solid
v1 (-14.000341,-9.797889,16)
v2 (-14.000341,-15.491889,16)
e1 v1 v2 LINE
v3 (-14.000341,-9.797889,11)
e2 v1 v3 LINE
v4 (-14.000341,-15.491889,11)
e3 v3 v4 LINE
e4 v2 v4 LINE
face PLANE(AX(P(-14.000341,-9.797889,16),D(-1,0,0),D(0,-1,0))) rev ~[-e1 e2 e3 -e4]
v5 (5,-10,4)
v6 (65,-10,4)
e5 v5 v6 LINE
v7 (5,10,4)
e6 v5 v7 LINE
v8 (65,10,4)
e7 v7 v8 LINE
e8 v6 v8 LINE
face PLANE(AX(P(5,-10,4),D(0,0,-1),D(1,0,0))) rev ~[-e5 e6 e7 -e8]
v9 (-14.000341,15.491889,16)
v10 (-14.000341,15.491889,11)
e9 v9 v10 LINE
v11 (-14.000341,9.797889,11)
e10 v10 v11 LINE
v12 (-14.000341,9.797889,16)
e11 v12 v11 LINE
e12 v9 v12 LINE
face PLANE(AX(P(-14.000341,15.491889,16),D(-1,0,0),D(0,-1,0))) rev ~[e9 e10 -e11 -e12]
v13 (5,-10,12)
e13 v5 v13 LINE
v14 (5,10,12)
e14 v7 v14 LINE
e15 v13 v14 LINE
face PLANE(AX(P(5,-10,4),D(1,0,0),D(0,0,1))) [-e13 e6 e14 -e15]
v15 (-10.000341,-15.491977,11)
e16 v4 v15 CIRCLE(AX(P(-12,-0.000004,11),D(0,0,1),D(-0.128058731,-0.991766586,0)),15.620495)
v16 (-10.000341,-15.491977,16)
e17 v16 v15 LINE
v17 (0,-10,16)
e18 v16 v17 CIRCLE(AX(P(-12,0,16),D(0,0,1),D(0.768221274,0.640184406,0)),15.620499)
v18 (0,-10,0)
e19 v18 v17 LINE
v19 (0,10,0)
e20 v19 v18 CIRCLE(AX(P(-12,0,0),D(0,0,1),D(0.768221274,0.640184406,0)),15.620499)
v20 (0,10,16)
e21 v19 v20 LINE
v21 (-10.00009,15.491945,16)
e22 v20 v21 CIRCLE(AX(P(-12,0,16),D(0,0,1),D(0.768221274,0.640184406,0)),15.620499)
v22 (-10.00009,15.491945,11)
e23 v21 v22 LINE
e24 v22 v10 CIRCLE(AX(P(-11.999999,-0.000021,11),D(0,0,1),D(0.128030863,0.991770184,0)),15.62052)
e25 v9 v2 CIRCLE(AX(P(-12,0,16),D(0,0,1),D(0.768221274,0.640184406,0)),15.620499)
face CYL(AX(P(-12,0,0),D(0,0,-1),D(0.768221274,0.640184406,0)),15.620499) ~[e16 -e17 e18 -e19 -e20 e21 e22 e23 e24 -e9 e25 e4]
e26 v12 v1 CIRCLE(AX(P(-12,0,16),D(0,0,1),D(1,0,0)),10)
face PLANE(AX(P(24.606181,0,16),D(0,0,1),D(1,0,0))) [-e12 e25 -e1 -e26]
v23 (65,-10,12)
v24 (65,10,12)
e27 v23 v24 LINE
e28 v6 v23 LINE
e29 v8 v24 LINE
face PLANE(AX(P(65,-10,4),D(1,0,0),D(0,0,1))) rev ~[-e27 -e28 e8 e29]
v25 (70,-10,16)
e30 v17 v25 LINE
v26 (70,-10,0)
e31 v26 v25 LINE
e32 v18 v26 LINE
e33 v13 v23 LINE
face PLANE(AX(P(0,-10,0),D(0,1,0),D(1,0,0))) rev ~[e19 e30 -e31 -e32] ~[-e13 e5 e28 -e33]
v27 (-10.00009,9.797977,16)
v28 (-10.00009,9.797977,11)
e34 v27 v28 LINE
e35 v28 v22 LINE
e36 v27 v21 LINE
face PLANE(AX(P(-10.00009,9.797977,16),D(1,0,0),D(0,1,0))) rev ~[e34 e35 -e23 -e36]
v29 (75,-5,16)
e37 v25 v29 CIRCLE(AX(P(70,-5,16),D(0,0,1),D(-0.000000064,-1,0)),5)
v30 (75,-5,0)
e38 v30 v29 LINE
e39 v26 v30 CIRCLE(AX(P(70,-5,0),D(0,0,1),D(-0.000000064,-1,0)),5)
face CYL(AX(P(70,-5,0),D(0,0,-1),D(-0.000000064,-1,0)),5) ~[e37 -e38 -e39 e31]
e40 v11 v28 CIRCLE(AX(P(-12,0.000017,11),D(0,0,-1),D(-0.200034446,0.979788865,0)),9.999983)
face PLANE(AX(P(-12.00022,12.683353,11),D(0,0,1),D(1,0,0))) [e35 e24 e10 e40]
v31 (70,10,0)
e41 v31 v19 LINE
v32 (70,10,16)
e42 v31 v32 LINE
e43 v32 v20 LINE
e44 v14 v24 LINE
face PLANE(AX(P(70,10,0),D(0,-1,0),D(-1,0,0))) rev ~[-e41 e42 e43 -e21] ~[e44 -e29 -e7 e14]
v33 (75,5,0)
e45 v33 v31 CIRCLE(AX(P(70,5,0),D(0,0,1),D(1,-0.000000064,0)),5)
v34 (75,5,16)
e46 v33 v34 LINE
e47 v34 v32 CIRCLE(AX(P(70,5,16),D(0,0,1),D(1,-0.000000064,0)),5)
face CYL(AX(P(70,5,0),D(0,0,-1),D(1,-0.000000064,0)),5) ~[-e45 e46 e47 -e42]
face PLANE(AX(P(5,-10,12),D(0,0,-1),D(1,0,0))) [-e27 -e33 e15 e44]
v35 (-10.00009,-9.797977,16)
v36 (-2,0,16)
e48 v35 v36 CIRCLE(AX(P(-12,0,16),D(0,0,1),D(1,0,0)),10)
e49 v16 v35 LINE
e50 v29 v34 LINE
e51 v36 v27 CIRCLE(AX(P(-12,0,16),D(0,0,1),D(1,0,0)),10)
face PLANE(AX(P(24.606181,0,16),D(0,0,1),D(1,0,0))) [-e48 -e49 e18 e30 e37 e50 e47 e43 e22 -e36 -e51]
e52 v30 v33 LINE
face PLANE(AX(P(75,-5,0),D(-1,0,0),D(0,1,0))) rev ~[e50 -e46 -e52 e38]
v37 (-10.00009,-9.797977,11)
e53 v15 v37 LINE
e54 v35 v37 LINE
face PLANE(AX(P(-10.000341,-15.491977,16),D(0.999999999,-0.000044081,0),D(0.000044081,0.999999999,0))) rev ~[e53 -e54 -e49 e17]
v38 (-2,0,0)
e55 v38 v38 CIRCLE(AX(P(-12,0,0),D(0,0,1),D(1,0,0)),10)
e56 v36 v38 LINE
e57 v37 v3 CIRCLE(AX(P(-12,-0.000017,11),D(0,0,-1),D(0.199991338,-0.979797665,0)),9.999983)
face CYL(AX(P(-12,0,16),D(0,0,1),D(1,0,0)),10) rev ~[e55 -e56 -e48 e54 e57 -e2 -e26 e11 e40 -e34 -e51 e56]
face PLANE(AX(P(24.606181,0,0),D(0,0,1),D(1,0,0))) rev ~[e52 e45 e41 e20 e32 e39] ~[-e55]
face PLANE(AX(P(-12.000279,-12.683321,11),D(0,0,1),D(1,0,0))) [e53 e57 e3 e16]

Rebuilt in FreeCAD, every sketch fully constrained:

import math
import FreeCAD as App
import Part
import Sketcher

V = App.Vector

doc = App.newDocument("Part")
params = doc.addObject("Spreadsheet::Sheet", "Params")
for row, (alias, value) in enumerate([
    ("sketch1_radius", "5 mm"),
    ("sketch1_width", "70 mm"),
    ("sketch1_height", "10 mm"),
    ("pad1_length", "16 mm"),
    ("sketch2_diameter", "20 mm"),
    ("pocket1_length", "25 mm"),
    ("sketch3_width", "60 mm"),
    ("sketch3_height", "8 mm"),
    ("pocket2_length", "25 mm"),
    ("pocket3_length", "5 mm"),
], start=1):
    params.set(f"A{row}", alias)
    params.set(f"B{row}", "=" + value)
    params.setAlias(f"B{row}", alias)

body = doc.addObject("PartDesign::Body", "Body")

sketch1 = body.newObject("Sketcher::SketchObject", "Sketch")
sketch1.AttachmentSupport = (doc.getObject("XY_Plane"), [""])
sketch1.MapMode = "FlatFace"
sketch1.addGeometry(Part.LineSegment(V(75, -5, 0), V(75, 5, 0)), False)
sketch1.addGeometry(Part.ArcOfCircle(Part.Circle(V(70, 5, 0), V(0, 0, 1), 5), math.radians(-0.000004), math.radians(90.000004)), False)
sketch1.addGeometry(Part.LineSegment(V(70, 10, 0), V(0, 10, 0)), False)
sketch1.addGeometry(Part.ArcOfCircle(Part.Circle(V(-12, 0, 0), V(0, 0, 1), 15.620499), math.radians(39.805572), math.radians(320.194428)), False)
sketch1.addGeometry(Part.LineSegment(V(0, -10, 0), V(70, -10, 0)), False)
sketch1.addGeometry(Part.ArcOfCircle(Part.Circle(V(70, -5, 0), V(0, 0, 1), 5), math.radians(-90.000004), math.radians(0.000004)), False)
sketch1.addConstraint(Sketcher.Constraint("Tangent", 0, 2, 1, 1))
sketch1.addConstraint(Sketcher.Constraint("Tangent", 1, 2, 2, 1))
sketch1.addConstraint(Sketcher.Constraint("Coincident", 2, 2, 3, 1))
sketch1.addConstraint(Sketcher.Constraint("Coincident", 3, 2, 4, 1))
sketch1.addConstraint(Sketcher.Constraint("Tangent", 4, 2, 5, 1))
sketch1.addConstraint(Sketcher.Constraint("Tangent", 5, 2, 0, 1))
sketch1.addConstraint(Sketcher.Constraint("Vertical", 0))
sketch1.addConstraint(Sketcher.Constraint("Horizontal", 2))
sketch1.addConstraint(Sketcher.Constraint("Horizontal", 4))
sketch1.addConstraint(Sketcher.Constraint("Equal", 1, 5))
sketch1.addConstraint(Sketcher.Constraint("Symmetric", 2, 2, 3, 2, -1, 1))
sketch1.addConstraint(Sketcher.Constraint("PointOnObject", 3, 3, -1))
sketch1.addConstraint(Sketcher.Constraint("Radius", 1, 5.0))
sketch1.addConstraint(Sketcher.Constraint("DistanceX", 2, 2, 2, 1, 70.0))
sketch1.addConstraint(Sketcher.Constraint("DistanceY", 0, 1, 0, 2, 10.0))
sketch1.addConstraint(Sketcher.Constraint("DistanceX", 3, 3, -1, 1, 12.0))
sketch1.setExpression("Constraints[12]", "Params.sketch1_radius")
sketch1.setExpression("Constraints[13]", "Params.sketch1_width")
sketch1.setExpression("Constraints[14]", "Params.sketch1_height")
pad1 = body.newObject("PartDesign::Pad", "Pad")
pad1.Profile = sketch1
pad1.setExpression("Length", "Params.pad1_length")

sketch2 = body.newObject("Sketcher::SketchObject", "Sketch001")
sketch2.AttachmentSupport = (doc.getObject("XY_Plane"), [""])
sketch2.MapMode = "FlatFace"
sketch2.AttachmentOffset = App.Placement(V(0, 0, 16), App.Rotation())
sketch2.addGeometry(Part.Circle(V(-12, 0, 0), V(0, 0, 1), 10), False)
sketch2.addConstraint(Sketcher.Constraint("PointOnObject", 0, 3, -1))
sketch2.addConstraint(Sketcher.Constraint("Diameter", 0, 20.0))
sketch2.addConstraint(Sketcher.Constraint("DistanceX", 0, 3, -1, 1, 12.0))
sketch2.setExpression("Constraints[1]", "Params.sketch2_diameter")
pocket1 = body.newObject("PartDesign::Pocket", "Pocket")
pocket1.Profile = sketch2
pocket1.setExpression("Length", "Params.pocket1_length")

sketch3 = body.newObject("Sketcher::SketchObject", "Sketch002")
sketch3.AttachmentSupport = (doc.getObject("XZ_Plane"), [""])
sketch3.MapMode = "FlatFace"
sketch3.AttachmentOffset = App.Placement(V(0, 0, 10), App.Rotation())
sketch3.addGeometry(Part.LineSegment(V(5, 12, 0), V(5, 4, 0)), False)
sketch3.addGeometry(Part.LineSegment(V(5, 4, 0), V(65, 4, 0)), False)
sketch3.addGeometry(Part.LineSegment(V(65, 4, 0), V(65, 12, 0)), False)
sketch3.addGeometry(Part.LineSegment(V(65, 12, 0), V(5, 12, 0)), False)
sketch3.addConstraint(Sketcher.Constraint("Coincident", 0, 2, 1, 1))
sketch3.addConstraint(Sketcher.Constraint("Coincident", 1, 2, 2, 1))
sketch3.addConstraint(Sketcher.Constraint("Coincident", 2, 2, 3, 1))
sketch3.addConstraint(Sketcher.Constraint("Coincident", 3, 2, 0, 1))
sketch3.addConstraint(Sketcher.Constraint("Vertical", 0))
sketch3.addConstraint(Sketcher.Constraint("Horizontal", 1))
sketch3.addConstraint(Sketcher.Constraint("Vertical", 2))
sketch3.addConstraint(Sketcher.Constraint("Horizontal", 3))
sketch3.addConstraint(Sketcher.Constraint("DistanceX", 1, 1, 1, 2, 60.0))
sketch3.addConstraint(Sketcher.Constraint("DistanceY", 0, 2, 0, 1, 8.0))
sketch3.addConstraint(Sketcher.Constraint("DistanceX", -1, 1, 0, 2, 5.0))
sketch3.addConstraint(Sketcher.Constraint("DistanceY", -1, 1, 0, 2, 4.0))
sketch3.setExpression("Constraints[8]", "Params.sketch3_width")
sketch3.setExpression("Constraints[9]", "Params.sketch3_height")
pocket2 = body.newObject("PartDesign::Pocket", "Pocket001")
pocket2.Profile = sketch3
pocket2.setExpression("Length", "Params.pocket2_length")

sketch4 = body.newObject("Sketcher::SketchObject", "Sketch003")
sketch4.AttachmentSupport = (doc.getObject("XY_Plane"), [""])
sketch4.MapMode = "FlatFace"
sketch4.AttachmentOffset = App.Placement(V(0, 0, 16), App.Rotation())
sketch4.addGeometry(Part.ArcOfCircle(Part.Circle(V(-11.999999, -0.000021, 0), V(0, 0, 1), 15.62052), math.radians(82.644182), math.radians(97.357422)), False)
sketch4.addGeometry(Part.LineSegment(V(-14.000341, 15.491889, 0), V(-14.000341, 9.797889, 0)), False)
sketch4.addGeometry(Part.ArcOfCircle(Part.Circle(V(-12, 0.000017, 0), V(0, 0, 1), 9.999983), math.radians(78.463548), math.radians(101.538973)), False)
sketch4.addGeometry(Part.LineSegment(V(-10.00009, 9.797977, 0), V(-10.00009, 15.491945, 0)), False)
sketch4.addGeometry(Part.LineSegment(V(-14.000341, -9.797889, 0), V(-14.000341, -15.491889, 0)), False)
sketch4.addGeometry(Part.ArcOfCircle(Part.Circle(V(-12, -0.000004, 0), V(0, 0, 1), 15.620495), math.radians(-97.357428), math.radians(-82.645093)), False)
sketch4.addGeometry(Part.LineSegment(V(-10.000341, -15.491977, 0), V(-10.00009, -9.797977, 0)), False)
sketch4.addGeometry(Part.ArcOfCircle(Part.Circle(V(-12, -0.000017, 0), V(0, 0, 1), 9.999983), math.radians(-101.538973), math.radians(-78.463548)), False)
sketch4.addConstraint(Sketcher.Constraint("Coincident", 0, 2, 1, 1))
sketch4.addConstraint(Sketcher.Constraint("Coincident", 1, 2, 2, 2))
sketch4.addConstraint(Sketcher.Constraint("Coincident", 2, 1, 3, 1))
sketch4.addConstraint(Sketcher.Constraint("Coincident", 3, 2, 0, 1))
sketch4.addConstraint(Sketcher.Constraint("Coincident", 4, 2, 5, 1))
sketch4.addConstraint(Sketcher.Constraint("Coincident", 5, 2, 6, 1))
sketch4.addConstraint(Sketcher.Constraint("Coincident", 6, 2, 7, 2))
sketch4.addConstraint(Sketcher.Constraint("Coincident", 7, 1, 4, 1))
sketch4.addConstraint(Sketcher.Constraint("Vertical", 1))
sketch4.addConstraint(Sketcher.Constraint("Vertical", 3))
sketch4.addConstraint(Sketcher.Constraint("Vertical", 4))
sketch4.addConstraint(Sketcher.Constraint("Coincident", 7, 3, 0, 3))
sketch4.addConstraint(Sketcher.Constraint("Equal", 2, 7))
sketch4.addConstraint(Sketcher.Constraint("Symmetric", 0, 3, 2, 3, -1))
sketch4.addConstraint(Sketcher.Constraint("Symmetric", 0, 2, 4, 2, -1))
sketch4.addConstraint(Sketcher.Constraint("Vertical", 2, 3, 5, 3))
sketch4.addConstraint(Sketcher.Constraint("Vertical", 3, 2, 6, 2))
sketch4.addConstraint(Sketcher.Constraint("DistanceX", 0, 3, -1, 1, 11.999999))
sketch4.addConstraint(Sketcher.Constraint("DistanceX", 4, 2, 5, 2, 4.0))
sketch4.addConstraint(Sketcher.Constraint("DistanceY", 1, 2, 1, 1, 5.694))
sketch4.addConstraint(Sketcher.Constraint("Radius", 0, 15.62052))
sketch4.addConstraint(Sketcher.Constraint("Distance", 6, 5.694))
sketch4.addConstraint(Sketcher.Constraint("Radius", 2, 9.999983))
sketch4.addConstraint(Sketcher.Constraint("Radius", 5, 15.620495))
sketch4.addConstraint(Sketcher.Constraint("DistanceY", 3, 1, 3, 2, 5.693968))
pocket3 = body.newObject("PartDesign::Pocket", "Pocket002")
pocket3.Profile = sketch4
pocket3.setExpression("Length", "Params.pocket3_length")

doc.recompute()
